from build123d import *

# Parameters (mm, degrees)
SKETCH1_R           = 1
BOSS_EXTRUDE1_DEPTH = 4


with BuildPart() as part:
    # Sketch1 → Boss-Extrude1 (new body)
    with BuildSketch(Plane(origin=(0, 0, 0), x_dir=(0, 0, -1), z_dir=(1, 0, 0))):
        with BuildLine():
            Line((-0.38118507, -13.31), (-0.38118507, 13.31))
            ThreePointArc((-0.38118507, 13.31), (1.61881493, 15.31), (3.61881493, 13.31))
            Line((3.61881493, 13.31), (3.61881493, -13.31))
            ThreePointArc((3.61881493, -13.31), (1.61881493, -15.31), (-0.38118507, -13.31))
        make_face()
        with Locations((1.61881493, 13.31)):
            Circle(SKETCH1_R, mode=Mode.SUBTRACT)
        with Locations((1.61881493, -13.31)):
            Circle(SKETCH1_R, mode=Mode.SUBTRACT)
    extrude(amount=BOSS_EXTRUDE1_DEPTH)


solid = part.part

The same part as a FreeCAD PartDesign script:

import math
import FreeCAD as App
import Part
import Sketcher

doc = App.newDocument("Part")
body = doc.addObject("PartDesign::Body", "Body")

sketch1 = body.newObject("Sketcher::SketchObject", "Sketch")
sketch1.AttachmentSupport = (doc.getObject("YZ_Plane"), [""])
sketch1.MapMode = "FlatFace"
sketch1.addGeometry([
    Part.LineSegment(App.Vector(13.3, 0.4, 0), App.Vector(-13.3, 0.4, 0)),
    Part.ArcOfCircle(Part.Circle(App.Vector(-13.3, -1.6, 0), App.Vector(0, 0, 1), 2), math.radians(90), math.radians(270)),
    Part.LineSegment(App.Vector(-13.3, -3.6, 0), App.Vector(13.3, -3.6, 0)),
    Part.ArcOfCircle(Part.Circle(App.Vector(13.3, -1.6, 0), App.Vector(0, 0, 1), 2), math.radians(-90), math.radians(90)),
    Part.Circle(App.Vector(-13.3, -1.6, 0), App.Vector(0, 0, 1), 1),
    Part.Circle(App.Vector(13.3, -1.6, 0), App.Vector(0, 0, 1), 1),
], False)
sketch1.addConstraint([
    Sketcher.Constraint("Tangent", 0, 2, 1, 1),
    Sketcher.Constraint("Tangent", 1, 2, 2, 1),
    Sketcher.Constraint("Tangent", 2, 2, 3, 1),
    Sketcher.Constraint("Tangent", 3, 2, 0, 1),
    Sketcher.Constraint("Horizontal", 0),
    Sketcher.Constraint("Horizontal", 2),
    Sketcher.Constraint("Coincident", 4, 3, 1, 3),
    Sketcher.Constraint("Coincident", 5, 3, 3, 3),
    Sketcher.Constraint("Equal", 4, 5),
    Sketcher.Constraint("Diameter", 4, 2.0),
    Sketcher.Constraint("Radius", 1, 2.0),
    Sketcher.Constraint("DistanceX", 0, 2, 0, 1, 26.62),
    Sketcher.Constraint("DistanceX", 1, 3, -1, 1, 13.31),
    Sketcher.Constraint("DistanceY", 1, 3, -1, 1, 1.618815),
])
pad1 = body.newObject("PartDesign::Pad", "Pad")
pad1.Profile = sketch1
pad1.Length = 4

doc.recompute()
